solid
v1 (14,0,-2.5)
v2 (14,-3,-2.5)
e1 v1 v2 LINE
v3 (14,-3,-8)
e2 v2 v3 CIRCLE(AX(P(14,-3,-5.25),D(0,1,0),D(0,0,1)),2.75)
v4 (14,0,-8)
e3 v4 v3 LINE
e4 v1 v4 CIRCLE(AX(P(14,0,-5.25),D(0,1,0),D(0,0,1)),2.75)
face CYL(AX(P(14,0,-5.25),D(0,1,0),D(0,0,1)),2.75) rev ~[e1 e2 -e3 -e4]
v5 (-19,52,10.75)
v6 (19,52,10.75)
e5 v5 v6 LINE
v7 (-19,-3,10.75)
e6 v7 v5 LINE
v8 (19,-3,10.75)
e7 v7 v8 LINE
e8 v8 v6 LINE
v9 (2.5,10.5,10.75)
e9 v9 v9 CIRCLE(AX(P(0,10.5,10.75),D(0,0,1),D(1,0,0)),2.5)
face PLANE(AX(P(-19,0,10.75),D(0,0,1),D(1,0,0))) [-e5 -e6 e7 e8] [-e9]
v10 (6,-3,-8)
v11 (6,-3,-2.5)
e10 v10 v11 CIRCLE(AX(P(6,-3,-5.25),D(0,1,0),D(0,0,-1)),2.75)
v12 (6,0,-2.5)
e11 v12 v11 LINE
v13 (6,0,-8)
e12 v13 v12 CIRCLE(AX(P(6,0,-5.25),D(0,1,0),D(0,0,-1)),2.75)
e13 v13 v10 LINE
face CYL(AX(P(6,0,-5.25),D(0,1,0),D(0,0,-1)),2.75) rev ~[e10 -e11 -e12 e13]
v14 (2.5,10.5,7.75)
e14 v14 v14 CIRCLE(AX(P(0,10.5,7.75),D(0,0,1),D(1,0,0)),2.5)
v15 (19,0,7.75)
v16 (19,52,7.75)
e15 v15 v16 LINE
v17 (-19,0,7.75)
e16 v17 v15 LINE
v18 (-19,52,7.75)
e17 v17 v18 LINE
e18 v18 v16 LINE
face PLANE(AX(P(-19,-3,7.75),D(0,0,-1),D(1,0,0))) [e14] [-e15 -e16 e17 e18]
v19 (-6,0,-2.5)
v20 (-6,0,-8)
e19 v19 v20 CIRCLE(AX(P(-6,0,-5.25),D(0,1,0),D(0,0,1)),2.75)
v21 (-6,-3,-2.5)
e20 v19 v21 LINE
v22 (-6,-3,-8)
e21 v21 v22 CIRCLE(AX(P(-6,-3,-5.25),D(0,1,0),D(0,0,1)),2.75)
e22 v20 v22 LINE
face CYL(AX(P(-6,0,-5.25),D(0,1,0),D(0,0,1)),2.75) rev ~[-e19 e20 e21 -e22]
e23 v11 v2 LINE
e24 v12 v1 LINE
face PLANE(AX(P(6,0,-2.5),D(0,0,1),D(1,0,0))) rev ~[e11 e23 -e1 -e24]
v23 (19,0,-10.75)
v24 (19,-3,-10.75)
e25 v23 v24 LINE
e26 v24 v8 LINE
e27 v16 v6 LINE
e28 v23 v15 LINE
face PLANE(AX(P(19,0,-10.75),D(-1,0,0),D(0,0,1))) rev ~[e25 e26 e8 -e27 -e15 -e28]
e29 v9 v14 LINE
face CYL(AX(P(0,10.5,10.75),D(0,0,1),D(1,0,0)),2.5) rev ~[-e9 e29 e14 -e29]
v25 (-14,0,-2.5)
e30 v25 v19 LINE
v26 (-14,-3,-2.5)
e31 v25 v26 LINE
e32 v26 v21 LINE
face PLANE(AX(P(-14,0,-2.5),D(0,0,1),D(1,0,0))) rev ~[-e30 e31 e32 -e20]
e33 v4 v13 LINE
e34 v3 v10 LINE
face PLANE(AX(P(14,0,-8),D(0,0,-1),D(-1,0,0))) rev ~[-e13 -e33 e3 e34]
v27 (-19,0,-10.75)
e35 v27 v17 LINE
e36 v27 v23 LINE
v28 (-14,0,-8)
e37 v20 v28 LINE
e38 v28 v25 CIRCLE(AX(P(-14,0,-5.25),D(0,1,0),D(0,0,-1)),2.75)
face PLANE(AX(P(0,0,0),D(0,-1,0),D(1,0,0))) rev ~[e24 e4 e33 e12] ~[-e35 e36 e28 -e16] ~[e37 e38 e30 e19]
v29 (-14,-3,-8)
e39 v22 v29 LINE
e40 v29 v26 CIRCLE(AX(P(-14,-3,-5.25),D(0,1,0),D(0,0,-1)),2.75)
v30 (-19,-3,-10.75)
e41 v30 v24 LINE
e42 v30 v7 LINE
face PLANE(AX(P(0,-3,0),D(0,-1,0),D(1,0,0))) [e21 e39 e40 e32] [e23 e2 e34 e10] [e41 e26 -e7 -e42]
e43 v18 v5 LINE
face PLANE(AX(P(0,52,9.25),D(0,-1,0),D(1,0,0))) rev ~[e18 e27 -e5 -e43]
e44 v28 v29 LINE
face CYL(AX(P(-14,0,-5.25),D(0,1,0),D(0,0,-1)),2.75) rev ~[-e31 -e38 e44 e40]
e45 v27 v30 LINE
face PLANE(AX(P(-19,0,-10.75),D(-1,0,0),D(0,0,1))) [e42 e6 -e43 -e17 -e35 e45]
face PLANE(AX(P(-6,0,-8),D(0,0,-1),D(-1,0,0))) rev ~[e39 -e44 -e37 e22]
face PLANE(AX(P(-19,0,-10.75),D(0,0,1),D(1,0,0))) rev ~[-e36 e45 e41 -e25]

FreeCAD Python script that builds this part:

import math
import FreeCAD as App
import Part
import Sketcher
Q = App.Units.Quantity


def add_polygon(sketch, points):
    """Adds a closed chain of lines whose ends are joined by coincident constraints."""
    first, n = sketch.GeometryCount, len(points)
    for a, b in zip(points, points[1:] + points[:1]):
        sketch.addGeometry(Part.LineSegment(App.Vector(*a, 0), App.Vector(*b, 0)), False)
    for i in range(n):
        sketch.addConstraint(Sketcher.Constraint("Coincident", first + i, 2, first + (i + 1) % n, 1))

doc = App.newDocument("Part")
params = doc.addObject("Spreadsheet::Sheet", "Params")
for row, (alias, value) in enumerate([
    ("sketch1_width", "38 mm"),
    ("sketch1_width2", "8 mm"),
    ("sketch1_radius", "2.75 mm"),
    ("sketch1_height", "21.5 mm"),
    ("pad1_length", "3 mm"),
    ("sketch2_width", "38 mm"),
    ("sketch2_height", "3 mm"),
    ("pad2_length", "55 mm"),
    ("sketch3_diameter", "5 mm"),
], start=1):
    params.set(f"A{row}", alias)
    params.set(f"B{row}", "=" + value)
    params.setAlias(f"B{row}", alias)

body = doc.addObject("PartDesign::Body", "Body")

sketch1 = body.newObject("Sketcher::SketchObject", "Sketch")
sketch1.AttachmentSupport = (doc.getObject("XZ_Plane"), [""])
sketch1.MapMode = "FlatFace"
add_polygon(sketch1, [(-19, 10.8), (-19, -10.8), (19, -10.8), (19, 10.8)])
sketch1.addGeometry(Part.LineSegment(App.Vector(-6, -8, 0), App.Vector(-14, -8, 0)), False)
sketch1.addGeometry(Part.ArcOfCircle(Part.Circle(App.Vector(-14, -5.2, 0), App.Vector(0, 0, 1), 2.8), math.radians(90), math.radians(270)), False)
sketch1.addGeometry(Part.LineSegment(App.Vector(-14, -2.5, 0), App.Vector(-6, -2.5, 0)), False)
sketch1.addGeometry(Part.ArcOfCircle(Part.Circle(App.Vector(-6, -5.2, 0), App.Vector(0, 0, 1), 2.8), math.radians(-90), math.radians(90)), False)
sketch1.addGeometry(Part.ArcOfCircle(Part.Circle(App.Vector(14, -5.2, 0), App.Vector(0, 0, 1), 2.8), math.radians(-90), math.radians(90)), False)
sketch1.addGeometry(Part.LineSegment(App.Vector(14, -8, 0), App.Vector(6, -8, 0)), False)
sketch1.addGeometry(Part.ArcOfCircle(Part.Circle(App.Vector(6, -5.2, 0), App.Vector(0, 0, 1), 2.8), math.radians(90), math.radians(270)), False)
sketch1.addGeometry(Part.LineSegment(App.Vector(6, -2.5, 0), App.Vector(14, -2.5, 0)), False)
sketch1.addConstraint([
    Sketcher.Constraint("Tangent", 4, 2, 5, 2),
    Sketcher.Constraint("Tangent", 5, 1, 6, 1),
    Sketcher.Constraint("Tangent", 6, 2, 7, 2),
    Sketcher.Constraint("Tangent", 7, 1, 4, 1),
    Sketcher.Constraint("Tangent", 8, 1, 9, 1),
    Sketcher.Constraint("Tangent", 9, 2, 10, 2),
    Sketcher.Constraint("Tangent", 10, 1, 11, 1),
    Sketcher.Constraint("Tangent", 11, 2, 8, 2),
    Sketcher.Constraint("Vertical", 0),
    Sketcher.Constraint("Horizontal", 1),
    Sketcher.Constraint("Vertical", 2),
    Sketcher.Constraint("Horizontal", 3),
    Sketcher.Constraint("Horizontal", 4),
    Sketcher.Constraint("Horizontal", 6),
    Sketcher.Constraint("Horizontal", 9),
    Sketcher.Constraint("Horizontal", 11),
    Sketcher.Constraint("Equal", 7, 8),
    Sketcher.Constraint("Symmetric", 0, 2, 2, 2, -1, 1),
    Sketcher.Constraint("Symmetric", 5, 3, 8, 3, -2),
    Sketcher.Constraint("Equal", 6, 9),
    Sketcher.Constraint("DistanceX", 1, 1, 1, 2, Q("38 mm")),
    Sketcher.Constraint("DistanceX", 4, 2, 4, 1, Q("8 mm")),
    Sketcher.Constraint("Radius", 5, Q("2.75 mm")),
    Sketcher.Constraint("DistanceY", 0, 2, 0, 1, Q("21.5 mm")),
    Sketcher.Constraint("DistanceX", 5, 3, -1, 1, Q("14 mm")),
    Sketcher.Constraint("DistanceY", 4, 2, -1, 1, Q("8 mm")),
])
sketch1.setExpression("Constraints[24]", "Params.sketch1_width")
sketch1.setExpression("Constraints[25]", "Params.sketch1_width2")
sketch1.setExpression("Constraints[26]", "Params.sketch1_radius")
sketch1.setExpression("Constraints[27]", "Params.sketch1_height")
pad1 = body.newObject("PartDesign::Pad", "Pad")
pad1.Profile = sketch1
pad1.setExpression("Length", "Params.pad1_length")

sketch2 = body.newObject("Sketcher::SketchObject", "Sketch001")
sketch2.AttachmentSupport = (doc.getObject("XZ_Plane"), [""])
sketch2.MapMode = "FlatFace"
sketch2.AttachmentOffset = App.Placement(App.Vector(0, 0, 3), App.Rotation())
add_polygon(sketch2, [(-19, 10.8), (-19, 7.8), (19, 7.8), (19, 10.8)])
sketch2.addConstraint([
    Sketcher.Constraint("Vertical", 0),
    Sketcher.Constraint("Horizontal", 1),
    Sketcher.Constraint("Vertical", 2),
    Sketcher.Constraint("Horizontal", 3),
    Sketcher.Constraint("DistanceX", 1, 1, 1, 2, Q("38 mm")),
    Sketcher.Constraint("DistanceY", 0, 2, 0, 1, Q("3 mm")),
    Sketcher.Constraint("DistanceX", 0, 2, -1, 1, Q("19 mm")),
    Sketcher.Constraint("DistanceY", -1, 1, 0, 2, Q("7.75 mm")),
])
sketch2.setExpression("Constraints[8]", "Params.sketch2_width")
sketch2.setExpression("Constraints[9]", "Params.sketch2_height")
pad2 = body.newObject("PartDesign::Pad", "Pad001")
pad2.Profile = sketch2
pad2.setExpression("Length", "Params.pad2_length")
pad2.Reversed = True

sketch3 = body.newObject("Sketcher::SketchObject", "Sketch002")
sketch3.AttachmentSupport = (doc.getObject("XY_Plane"), [""])
sketch3.MapMode = "FlatFace"
sketch3.AttachmentOffset = App.Placement(App.Vector(0, 0, 10.75), App.Rotation())
sketch3.addGeometry(Part.Circle(App.Vector(0, 10.5, 0), App.Vector(0, 0, 1), 2.5), False)
sketch3.addConstraint([
    Sketcher.Constraint("PointOnObject", 0, 3, -2),
    Sketcher.Constraint("Diameter", 0, Q("5 mm")),
    Sketcher.Constraint("DistanceY", -1, 1, 0, 3, Q("10.5 mm")),
])
sketch3.setExpression("Constraints[1]", "Params.sketch3_diameter")
pocket1 = body.newObject("PartDesign::Pocket", "Pocket")
pocket1.Profile = sketch3
pocket1.Type = "ThroughAll"

doc.recompute()
